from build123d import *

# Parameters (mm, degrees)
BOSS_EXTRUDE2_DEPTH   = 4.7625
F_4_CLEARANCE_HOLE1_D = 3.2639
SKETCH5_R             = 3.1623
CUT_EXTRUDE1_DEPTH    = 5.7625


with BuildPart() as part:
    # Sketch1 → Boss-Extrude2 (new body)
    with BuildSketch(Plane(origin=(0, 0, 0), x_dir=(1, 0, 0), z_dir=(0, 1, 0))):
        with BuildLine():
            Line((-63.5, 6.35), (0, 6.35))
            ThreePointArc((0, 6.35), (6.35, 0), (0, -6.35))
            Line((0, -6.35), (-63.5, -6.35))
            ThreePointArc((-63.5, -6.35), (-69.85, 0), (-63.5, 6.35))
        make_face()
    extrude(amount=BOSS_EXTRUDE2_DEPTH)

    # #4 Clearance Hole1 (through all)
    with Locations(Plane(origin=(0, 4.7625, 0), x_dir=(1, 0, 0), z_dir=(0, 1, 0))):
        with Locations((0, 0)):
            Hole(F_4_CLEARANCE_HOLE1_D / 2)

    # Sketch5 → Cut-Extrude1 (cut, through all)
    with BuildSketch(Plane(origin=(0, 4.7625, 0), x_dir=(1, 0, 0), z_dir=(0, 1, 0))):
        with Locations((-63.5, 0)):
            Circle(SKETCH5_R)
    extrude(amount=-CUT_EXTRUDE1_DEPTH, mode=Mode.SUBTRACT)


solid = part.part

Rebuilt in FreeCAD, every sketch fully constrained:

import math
import FreeCAD as App
import Part
import Sketcher
from FreeCAD import Vector
Q = App.Units.Quantity

doc = App.newDocument("Part")
body = doc.addObject("PartDesign::Body", "Body")

# Sketch on XZ plane
sketch1 = body.newObject("Sketcher::SketchObject", "Sketch")
sketch1.AttachmentSupport = (doc.getObject("XZ_Plane"), [""])
sketch1.MapMode = "FlatFace"
sketch1.addGeometry([
    Part.LineSegment(Vector(0, -6, 0), Vector(-64, -6, 0)),
    Part.ArcOfCircle(Part.Circle(Vector(-64, 0, 0), Vector(0, 0, 1), 6), math.radians(90), math.radians(270)),
    Part.LineSegment(Vector(-64, 6, 0), Vector(0, 6, 0)),
    Part.ArcOfCircle(Part.Circle(Vector(0, 0, 0), Vector(0, 0, 1), 6), math.radians(-90), math.radians(90)),
], False)
sketch1.addConstraint([
    Sketcher.Constraint("Tangent", 0, 2, 1, 2),
    Sketcher.Constraint("Tangent", 1, 1, 2, 1),
    Sketcher.Constraint("Tangent", 2, 2, 3, 2),
    Sketcher.Constraint("Tangent", 3, 1, 0, 1),
    Sketcher.Constraint("Horizontal", 0),
    Sketcher.Constraint("Horizontal", 2),
    Sketcher.Constraint("Coincident", 3, 3, -1, 1),
    Sketcher.Constraint("Radius", 1, Q("0.25 in")),
    Sketcher.Constraint("DistanceX", 0, 2, 0, 1, Q("2.5 in")),
])
pad1 = body.newObject("PartDesign::Pad", "Pad")
pad1.Profile = sketch1
pad1.Length = Q("0.1875 in")
pad1.Reversed = True

# Sketch on XZ plane
sketch2 = body.newObject("Sketcher::SketchObject", "Sketch001")
sketch2.AttachmentSupport = (doc.getObject("XZ_Plane"), [""])
sketch2.MapMode = "FlatFace"
sketch2.AttachmentOffset = App.Placement(Vector(0, 0, -0.1875 * 25.4), App.Rotation())
sketch2.addGeometry(Part.Circle(Vector(0, 0, 0), Vector(0, 0, 1), 1.6), False)
sketch2.addConstraint([
    Sketcher.Constraint("Coincident", 0, 3, -1, 1),
    Sketcher.Constraint("Diameter", 0, Q("0.1285 in")),
])
doc.recompute()
hole = body.newObject("PartDesign::Hole", "Hole")
hole.Profile = sketch2
hole.ThreadType = "None"
hole.Diameter = Q("0.1285 in")
hole.DepthType = "ThroughAll"
hole.Reversed = True

# Sketch on XZ plane
sketch3 = body.newObject("Sketcher::SketchObject", "Sketch002")
sketch3.AttachmentSupport = (doc.getObject("XZ_Plane"), [""])
sketch3.MapMode = "FlatFace"
sketch3.AttachmentOffset = App.Placement(Vector(0, 0, -0.1875 * 25.4), App.Rotation())
sketch3.addGeometry(Part.Circle(Vector(-63.5, 0, 0), Vector(0, 0, 1), 3.2), False)
sketch3.addConstraint([
    Sketcher.Constraint("PointOnObject", 0, 3, -1),
    Sketcher.Constraint("Diameter", 0, Q("0.249 in")),
    Sketcher.Constraint("DistanceX", 0, 3, -1, 1, Q("2.5 in")),
])
pocket1 = body.newObject("PartDesign::Pocket", "Pocket")
pocket1.Profile = sketch3
pocket1.Type = "ThroughAll"
pocket1.Reversed = True

doc.recompute()
